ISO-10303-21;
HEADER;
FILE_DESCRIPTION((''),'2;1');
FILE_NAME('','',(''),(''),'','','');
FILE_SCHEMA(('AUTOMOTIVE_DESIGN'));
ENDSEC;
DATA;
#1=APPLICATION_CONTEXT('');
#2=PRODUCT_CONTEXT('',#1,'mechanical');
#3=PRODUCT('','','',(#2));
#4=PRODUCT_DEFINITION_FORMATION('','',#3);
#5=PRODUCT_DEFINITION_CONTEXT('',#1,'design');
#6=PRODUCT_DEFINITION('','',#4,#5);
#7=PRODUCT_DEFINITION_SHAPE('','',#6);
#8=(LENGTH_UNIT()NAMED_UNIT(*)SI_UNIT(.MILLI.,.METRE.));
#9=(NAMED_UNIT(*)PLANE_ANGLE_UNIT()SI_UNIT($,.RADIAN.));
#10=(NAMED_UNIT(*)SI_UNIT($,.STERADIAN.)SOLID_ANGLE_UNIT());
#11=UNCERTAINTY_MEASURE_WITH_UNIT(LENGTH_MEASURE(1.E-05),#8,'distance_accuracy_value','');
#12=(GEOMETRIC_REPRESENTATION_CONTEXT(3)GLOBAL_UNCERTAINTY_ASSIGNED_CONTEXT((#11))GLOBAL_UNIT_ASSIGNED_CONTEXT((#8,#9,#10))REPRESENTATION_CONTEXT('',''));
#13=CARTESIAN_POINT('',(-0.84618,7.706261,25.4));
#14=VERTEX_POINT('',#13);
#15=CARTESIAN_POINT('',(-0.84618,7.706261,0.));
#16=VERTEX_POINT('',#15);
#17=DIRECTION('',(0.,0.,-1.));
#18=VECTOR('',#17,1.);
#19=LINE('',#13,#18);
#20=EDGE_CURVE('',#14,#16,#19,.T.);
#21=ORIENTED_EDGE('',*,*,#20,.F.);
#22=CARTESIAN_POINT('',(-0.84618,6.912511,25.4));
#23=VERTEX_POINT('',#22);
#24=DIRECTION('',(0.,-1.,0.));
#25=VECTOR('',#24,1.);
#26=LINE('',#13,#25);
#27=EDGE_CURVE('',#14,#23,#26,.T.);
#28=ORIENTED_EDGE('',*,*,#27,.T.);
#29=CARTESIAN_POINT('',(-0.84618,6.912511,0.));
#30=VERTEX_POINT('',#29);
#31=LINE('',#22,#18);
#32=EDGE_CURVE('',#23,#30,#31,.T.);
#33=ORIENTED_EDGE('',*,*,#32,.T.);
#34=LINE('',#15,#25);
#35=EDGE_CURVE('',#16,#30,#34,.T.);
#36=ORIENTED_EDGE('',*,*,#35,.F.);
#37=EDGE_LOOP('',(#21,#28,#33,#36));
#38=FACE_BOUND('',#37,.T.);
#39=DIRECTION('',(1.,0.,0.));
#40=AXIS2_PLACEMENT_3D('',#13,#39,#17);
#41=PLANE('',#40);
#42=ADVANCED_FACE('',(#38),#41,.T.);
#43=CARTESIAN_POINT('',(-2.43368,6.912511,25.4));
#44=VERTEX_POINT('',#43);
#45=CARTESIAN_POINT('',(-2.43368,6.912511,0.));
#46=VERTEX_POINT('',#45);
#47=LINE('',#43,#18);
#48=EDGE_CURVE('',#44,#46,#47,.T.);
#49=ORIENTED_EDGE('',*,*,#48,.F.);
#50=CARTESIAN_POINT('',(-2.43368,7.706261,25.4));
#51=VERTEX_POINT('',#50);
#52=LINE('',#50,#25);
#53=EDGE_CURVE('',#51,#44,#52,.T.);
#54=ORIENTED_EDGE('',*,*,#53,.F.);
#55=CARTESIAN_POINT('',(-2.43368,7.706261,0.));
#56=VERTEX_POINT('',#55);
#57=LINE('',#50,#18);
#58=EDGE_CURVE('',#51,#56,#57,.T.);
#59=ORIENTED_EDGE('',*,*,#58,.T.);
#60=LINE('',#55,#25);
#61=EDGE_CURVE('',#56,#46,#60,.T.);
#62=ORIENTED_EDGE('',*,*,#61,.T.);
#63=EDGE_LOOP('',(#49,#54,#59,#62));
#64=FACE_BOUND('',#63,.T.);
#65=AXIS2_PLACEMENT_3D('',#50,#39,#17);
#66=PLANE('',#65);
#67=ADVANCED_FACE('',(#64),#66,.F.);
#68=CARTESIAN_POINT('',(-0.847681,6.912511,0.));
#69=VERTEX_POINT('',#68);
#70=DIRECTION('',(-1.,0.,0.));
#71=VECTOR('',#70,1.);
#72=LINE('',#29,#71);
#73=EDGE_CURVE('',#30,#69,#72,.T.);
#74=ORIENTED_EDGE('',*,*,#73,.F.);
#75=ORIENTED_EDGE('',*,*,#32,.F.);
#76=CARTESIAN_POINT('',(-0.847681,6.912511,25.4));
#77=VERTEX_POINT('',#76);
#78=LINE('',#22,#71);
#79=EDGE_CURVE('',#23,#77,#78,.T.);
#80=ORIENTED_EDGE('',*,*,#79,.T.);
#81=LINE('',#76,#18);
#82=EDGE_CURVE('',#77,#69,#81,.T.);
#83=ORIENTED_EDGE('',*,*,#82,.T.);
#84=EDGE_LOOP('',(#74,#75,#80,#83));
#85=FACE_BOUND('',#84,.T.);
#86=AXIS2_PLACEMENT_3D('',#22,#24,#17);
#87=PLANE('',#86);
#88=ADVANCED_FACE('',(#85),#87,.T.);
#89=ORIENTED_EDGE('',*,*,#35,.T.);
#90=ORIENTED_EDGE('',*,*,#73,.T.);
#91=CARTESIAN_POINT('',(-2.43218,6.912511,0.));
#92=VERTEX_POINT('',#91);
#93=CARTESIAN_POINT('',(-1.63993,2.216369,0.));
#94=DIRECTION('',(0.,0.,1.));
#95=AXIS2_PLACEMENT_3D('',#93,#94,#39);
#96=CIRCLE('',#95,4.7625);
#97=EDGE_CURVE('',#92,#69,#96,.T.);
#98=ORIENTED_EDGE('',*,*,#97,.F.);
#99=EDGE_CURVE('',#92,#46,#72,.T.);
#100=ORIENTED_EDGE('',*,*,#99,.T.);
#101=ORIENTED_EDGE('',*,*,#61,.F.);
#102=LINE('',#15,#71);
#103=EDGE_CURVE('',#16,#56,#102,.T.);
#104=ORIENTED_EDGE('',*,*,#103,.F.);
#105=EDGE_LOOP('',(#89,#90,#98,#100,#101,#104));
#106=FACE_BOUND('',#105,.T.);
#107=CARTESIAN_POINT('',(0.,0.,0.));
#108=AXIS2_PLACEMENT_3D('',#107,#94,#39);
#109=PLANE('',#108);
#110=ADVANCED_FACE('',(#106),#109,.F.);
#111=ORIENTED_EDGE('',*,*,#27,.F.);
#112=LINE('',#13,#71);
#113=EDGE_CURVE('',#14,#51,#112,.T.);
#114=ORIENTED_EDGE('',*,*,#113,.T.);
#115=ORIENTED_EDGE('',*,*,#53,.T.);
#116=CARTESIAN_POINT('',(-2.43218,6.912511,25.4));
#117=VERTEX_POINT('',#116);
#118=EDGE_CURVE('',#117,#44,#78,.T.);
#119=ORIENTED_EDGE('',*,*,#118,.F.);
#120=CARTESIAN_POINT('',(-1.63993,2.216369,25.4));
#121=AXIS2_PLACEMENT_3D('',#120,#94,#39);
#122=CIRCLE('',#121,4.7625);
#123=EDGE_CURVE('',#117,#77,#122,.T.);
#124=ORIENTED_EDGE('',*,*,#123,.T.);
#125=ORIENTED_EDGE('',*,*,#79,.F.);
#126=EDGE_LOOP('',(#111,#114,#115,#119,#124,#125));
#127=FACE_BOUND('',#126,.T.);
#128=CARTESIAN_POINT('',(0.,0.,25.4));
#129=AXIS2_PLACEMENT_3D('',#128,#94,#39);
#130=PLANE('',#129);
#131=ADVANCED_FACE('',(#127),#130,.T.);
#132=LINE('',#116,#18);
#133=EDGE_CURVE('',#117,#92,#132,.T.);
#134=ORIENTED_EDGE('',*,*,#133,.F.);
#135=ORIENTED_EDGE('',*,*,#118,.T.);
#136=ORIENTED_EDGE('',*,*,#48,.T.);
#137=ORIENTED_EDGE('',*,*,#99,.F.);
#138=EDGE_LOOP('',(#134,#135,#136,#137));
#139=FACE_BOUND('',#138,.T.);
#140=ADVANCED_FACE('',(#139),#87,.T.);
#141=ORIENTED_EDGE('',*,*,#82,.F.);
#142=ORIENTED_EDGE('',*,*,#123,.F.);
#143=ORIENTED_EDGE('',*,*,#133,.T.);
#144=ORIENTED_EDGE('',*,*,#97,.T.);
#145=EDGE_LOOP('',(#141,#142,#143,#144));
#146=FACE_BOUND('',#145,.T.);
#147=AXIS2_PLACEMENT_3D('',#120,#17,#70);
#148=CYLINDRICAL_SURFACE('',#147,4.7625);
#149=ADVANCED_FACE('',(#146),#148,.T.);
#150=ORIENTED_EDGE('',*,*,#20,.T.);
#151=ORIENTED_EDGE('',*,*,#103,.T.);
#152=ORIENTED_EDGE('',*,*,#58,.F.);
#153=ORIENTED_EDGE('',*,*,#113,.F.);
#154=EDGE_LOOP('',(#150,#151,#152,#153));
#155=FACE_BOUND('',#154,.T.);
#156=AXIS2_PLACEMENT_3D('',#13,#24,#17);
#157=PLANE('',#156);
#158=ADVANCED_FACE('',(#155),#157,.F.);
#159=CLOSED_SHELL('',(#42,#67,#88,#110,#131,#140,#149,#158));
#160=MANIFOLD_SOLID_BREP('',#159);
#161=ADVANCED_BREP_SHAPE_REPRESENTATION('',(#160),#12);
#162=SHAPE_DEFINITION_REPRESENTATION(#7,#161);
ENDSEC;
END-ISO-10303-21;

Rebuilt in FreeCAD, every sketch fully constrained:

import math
import FreeCAD as App
import Part
import Sketcher
from FreeCAD import Vector
Q = App.Units.Quantity

doc = App.newDocument("Part")
body = doc.addObject("PartDesign::Body", "Body")

# Sketch on XY plane
sketch1 = doc.addObject("Sketcher::SketchObject", "Sketch")
body.addObject(sketch1)
sketch1.AttachmentSupport = (doc.XY_Plane, [""])
sketch1.MapMode = "FlatFace"
sketch1.addGeometry(Part.ArcOfCircle(Part.Circle(Vector(-1.63993, 2.216369, 0), Vector(0, 0, 1), 4.7625), math.radians(99.575763), math.radians(440.424237)), False)
sketch1.addGeometry(Part.LineSegment(Vector(-0.847681, 6.912511, 0), Vector(-0.84618, 6.912511, 0)), False)
sketch1.addGeometry(Part.LineSegment(Vector(-0.84618, 6.912511, 0), Vector(-0.84618, 7.706261, 0)), False)
sketch1.addGeometry(Part.LineSegment(Vector(-0.84618, 7.706261, 0), Vector(-2.43368, 7.706261, 0)), False)
sketch1.addGeometry(Part.LineSegment(Vector(-2.43368, 7.706261, 0), Vector(-2.43368, 6.912511, 0)), False)
sketch1.addGeometry(Part.LineSegment(Vector(-2.43368, 6.912511, 0), Vector(-2.43218, 6.912511, 0)), False)
sketch1.addConstraint(Sketcher.Constraint("Coincident", 0, 2, 1, 1))
sketch1.addConstraint(Sketcher.Constraint("Coincident", 1, 2, 2, 1))
sketch1.addConstraint(Sketcher.Constraint("Coincident", 2, 2, 3, 1))
sketch1.addConstraint(Sketcher.Constraint("Coincident", 3, 2, 4, 1))
sketch1.addConstraint(Sketcher.Constraint("Coincident", 4, 2, 5, 1))
sketch1.addConstraint(Sketcher.Constraint("Coincident", 5, 2, 0, 1))
sketch1.addConstraint(Sketcher.Constraint("Horizontal", 1))
sketch1.addConstraint(Sketcher.Constraint("Vertical", 2))
sketch1.addConstraint(Sketcher.Constraint("Horizontal", 3))
sketch1.addConstraint(Sketcher.Constraint("Vertical", 4))
sketch1.addConstraint(Sketcher.Constraint("Horizontal", 5))
sketch1.addConstraint(Sketcher.Constraint("Horizontal", 1, 2, 4, 2))
sketch1.addConstraint(Sketcher.Constraint("Equal", 1, 5))
sketch1.addConstraint(Sketcher.Constraint("Radius", 0, Q("0.1875 in")))
sketch1.addConstraint(Sketcher.Constraint("DistanceX", 3, 2, 3, 1, Q("0.0625 in")))
sketch1.addConstraint(Sketcher.Constraint("DistanceY", 2, 1, 2, 2, Q("0.03125 in")))
sketch1.addConstraint(Sketcher.Constraint("DistanceX", 1, 1, 1, 2, Q("0.0015 mm")))
sketch1.addConstraint(Sketcher.Constraint("DistanceX", 0, 3, -1, 1, Q("1.63993 mm")))
sketch1.addConstraint(Sketcher.Constraint("DistanceY", -1, 1, 0, 3, Q("2.216369 mm")))
pad1 = doc.addObject("PartDesign::Pad", "Pad")
body.addObject(pad1)
pad1.Profile = sketch1
pad1.Length = Q("1 in")

doc.recompute()
